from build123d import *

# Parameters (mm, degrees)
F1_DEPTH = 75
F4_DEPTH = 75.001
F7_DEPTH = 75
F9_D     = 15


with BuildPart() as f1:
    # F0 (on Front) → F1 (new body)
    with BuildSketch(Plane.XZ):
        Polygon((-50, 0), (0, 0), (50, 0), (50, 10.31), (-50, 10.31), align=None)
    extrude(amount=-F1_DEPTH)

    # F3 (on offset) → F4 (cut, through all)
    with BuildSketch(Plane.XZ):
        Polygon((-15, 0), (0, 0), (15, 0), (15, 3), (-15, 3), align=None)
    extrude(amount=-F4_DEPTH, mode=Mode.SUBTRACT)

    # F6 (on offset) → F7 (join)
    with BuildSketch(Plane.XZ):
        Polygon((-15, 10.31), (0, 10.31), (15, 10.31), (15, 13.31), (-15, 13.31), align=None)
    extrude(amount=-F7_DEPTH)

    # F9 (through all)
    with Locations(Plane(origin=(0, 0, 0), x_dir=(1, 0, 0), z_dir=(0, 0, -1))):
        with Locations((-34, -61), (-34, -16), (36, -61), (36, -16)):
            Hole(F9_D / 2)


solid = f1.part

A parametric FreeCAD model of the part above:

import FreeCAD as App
import Part
import Sketcher
from FreeCAD import Vector


def add_polygon(sketch, points):
    """Adds a closed chain of lines whose ends are joined by coincident constraints."""
    first, n = sketch.GeometryCount, len(points)
    for a, b in zip(points, points[1:] + points[:1]):
        sketch.addGeometry(Part.LineSegment(App.Vector(*a, 0), App.Vector(*b, 0)), False)
    for i in range(n):
        sketch.addConstraint(Sketcher.Constraint("Coincident", first + i, 2, first + (i + 1) % n, 1))

doc = App.newDocument("Part")
body = doc.addObject("PartDesign::Body", "Body")

# Sketch on XZ plane
sketch1 = doc.addObject("Sketcher::SketchObject", "Sketch")
body.addObject(sketch1)
sketch1.AttachmentSupport = (doc.XZ_Plane, [""])
sketch1.MapMode = "FlatFace"
add_polygon(sketch1, [(-50, 0), (50, 0), (50, 10), (-50, 10)])  # lines 0-3
sketch1.addConstraint(Sketcher.Constraint("Horizontal", 0))
sketch1.addConstraint(Sketcher.Constraint("Vertical", 1))
sketch1.addConstraint(Sketcher.Constraint("Horizontal", 2))
sketch1.addConstraint(Sketcher.Constraint("Vertical", 3))
sketch1.addConstraint(Sketcher.Constraint("Symmetric", 0, 2, 3, 2, -1, 1))
sketch1.addConstraint(Sketcher.Constraint("DistanceX", 0, 1, 0, 2, 100.0))
sketch1.addConstraint(Sketcher.Constraint("DistanceY", 1, 1, 1, 2, 10.31))
pad1 = doc.addObject("PartDesign::Pad", "Pad")
body.addObject(pad1)
pad1.Profile = sketch1
pad1.Length = 75
pad1.Reversed = True

# Sketch on XZ plane
sketch2 = doc.addObject("Sketcher::SketchObject", "Sketch001")
body.addObject(sketch2)
sketch2.AttachmentSupport = (doc.XZ_Plane, [""])
sketch2.MapMode = "FlatFace"
add_polygon(sketch2, [(-15, 0), (15, 0), (15, 3), (-15, 3)])  # lines 0-3
sketch2.addConstraint(Sketcher.Constraint("Horizontal", 0))
sketch2.addConstraint(Sketcher.Constraint("Vertical", 1))
sketch2.addConstraint(Sketcher.Constraint("Horizontal", 2))
sketch2.addConstraint(Sketcher.Constraint("Vertical", 3))
sketch2.addConstraint(Sketcher.Constraint("Symmetric", 0, 2, 3, 2, -1, 1))
sketch2.addConstraint(Sketcher.Constraint("DistanceX", 0, 1, 0, 2, 30.0))
sketch2.addConstraint(Sketcher.Constraint("DistanceY", 1, 1, 1, 2, 3.0))
pocket1 = doc.addObject("PartDesign::Pocket", "Pocket")
body.addObject(pocket1)
pocket1.Profile = sketch2
pocket1.Type = "ThroughAll"

# Sketch on XZ plane
sketch3 = doc.addObject("Sketcher::SketchObject", "Sketch002")
body.addObject(sketch3)
sketch3.AttachmentSupport = (doc.XZ_Plane, [""])
sketch3.MapMode = "FlatFace"
add_polygon(sketch3, [(-15, 10.3), (15, 10.3), (15, 13.3), (-15, 13.3)])  # lines 0-3
sketch3.addConstraint(Sketcher.Constraint("Horizontal", 0))
sketch3.addConstraint(Sketcher.Constraint("Vertical", 1))
sketch3.addConstraint(Sketcher.Constraint("Horizontal", 2))
sketch3.addConstraint(Sketcher.Constraint("Vertical", 3))
sketch3.addConstraint(Sketcher.Constraint("DistanceX", 0, 1, 0, 2, 30.0))
sketch3.addConstraint(Sketcher.Constraint("DistanceY", 1, 1, 1, 2, 3.0))
sketch3.addConstraint(Sketcher.Constraint("DistanceX", -1, 1, 0, 2, 15.0))
sketch3.addConstraint(Sketcher.Constraint("DistanceY", -1, 1, 0, 2, 10.31))
pad2 = doc.addObject("PartDesign::Pad", "Pad001")
body.addObject(pad2)
pad2.Profile = sketch3
pad2.Length = 75
pad2.Reversed = True

# Sketch on XY plane
sketch4 = doc.addObject("Sketcher::SketchObject", "Sketch003")
body.addObject(sketch4)
sketch4.AttachmentSupport = (doc.XY_Plane, [""])
sketch4.MapMode = "FlatFace"
sketch4.addGeometry(Part.Circle(Vector(-34, 61, 0), Vector(0, 0, 1), 8), False)
sketch4.addGeometry(Part.Circle(Vector(-34, 16, 0), Vector(0, 0, 1), 8), False)
sketch4.addGeometry(Part.Circle(Vector(36, 61, 0), Vector(0, 0, 1), 8), False)
sketch4.addGeometry(Part.Circle(Vector(36, 16, 0), Vector(0, 0, 1), 8), False)
sketch4.addConstraint(Sketcher.Constraint("Equal", 0, 1))
sketch4.addConstraint(Sketcher.Constraint("Equal", 1, 2))
sketch4.addConstraint(Sketcher.Constraint("Equal", 2, 3))
sketch4.addConstraint(Sketcher.Constraint("Horizontal", 0, 3, 2, 3))
sketch4.addConstraint(Sketcher.Constraint("Horizontal", 1, 3, 3, 3))
sketch4.addConstraint(Sketcher.Constraint("Vertical", 0, 3, 1, 3))
sketch4.addConstraint(Sketcher.Constraint("Vertical", 2, 3, 3, 3))
sketch4.addConstraint(Sketcher.Constraint("Diameter", 0, 15.0))
sketch4.addConstraint(Sketcher.Constraint("DistanceX", 0, 3, -1, 1, 34.0))
sketch4.addConstraint(Sketcher.Constraint("DistanceY", -1, 1, 0, 3, 61.0))
sketch4.addConstraint(Sketcher.Constraint("DistanceY", -1, 1, 1, 3, 16.0))
sketch4.addConstraint(Sketcher.Constraint("DistanceX", -1, 1, 2, 3, 36.0))
doc.recompute()
hole = doc.addObject("PartDesign::Hole", "Hole")
body.addObject(hole)
hole.Profile = sketch4
hole.ThreadType = "None"
hole.Diameter = 15
hole.DepthType = "ThroughAll"
hole.Reversed = True

doc.recompute()
